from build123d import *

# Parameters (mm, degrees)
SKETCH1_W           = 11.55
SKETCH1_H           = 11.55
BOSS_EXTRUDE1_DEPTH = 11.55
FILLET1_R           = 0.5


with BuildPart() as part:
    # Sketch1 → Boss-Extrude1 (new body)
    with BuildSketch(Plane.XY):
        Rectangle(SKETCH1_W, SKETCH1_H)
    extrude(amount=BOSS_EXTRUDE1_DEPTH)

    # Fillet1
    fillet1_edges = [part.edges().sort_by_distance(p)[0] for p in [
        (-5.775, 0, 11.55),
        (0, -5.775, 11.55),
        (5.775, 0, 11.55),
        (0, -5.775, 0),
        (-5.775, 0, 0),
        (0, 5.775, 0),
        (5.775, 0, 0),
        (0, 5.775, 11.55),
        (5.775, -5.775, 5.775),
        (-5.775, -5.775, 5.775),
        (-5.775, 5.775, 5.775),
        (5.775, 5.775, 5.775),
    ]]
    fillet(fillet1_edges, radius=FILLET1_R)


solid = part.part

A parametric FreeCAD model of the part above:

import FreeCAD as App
import Part
import Sketcher
from FreeCAD import Vector


def add_polygon(sketch, points):
    """Adds a closed chain of lines whose ends are joined by coincident constraints."""
    first, n = sketch.GeometryCount, len(points)
    for a, b in zip(points, points[1:] + points[:1]):
        sketch.addGeometry(Part.LineSegment(App.Vector(*a, 0), App.Vector(*b, 0)), False)
    for i in range(n):
        sketch.addConstraint(Sketcher.Constraint("Coincident", first + i, 2, first + (i + 1) % n, 1))

doc = App.newDocument("Part")
body = doc.addObject("PartDesign::Body", "Body")

# Sketch on XY plane
sketch1 = doc.addObject("Sketcher::SketchObject", "Sketch")
body.addObject(sketch1)
sketch1.AttachmentSupport = (doc.XY_Plane, [""])
sketch1.MapMode = "FlatFace"
add_polygon(sketch1, [(-6, 6), (-6, -6), (6, -6), (6, 6)])  # lines 0-3
sketch1.addConstraint([
    Sketcher.Constraint("Vertical", 0),
    Sketcher.Constraint("Horizontal", 1),
    Sketcher.Constraint("Vertical", 2),
    Sketcher.Constraint("Horizontal", 3),
    Sketcher.Constraint("Symmetric", 0, 2, 2, 2, -1, 1),
    Sketcher.Constraint("Equal", 3, 0),
    Sketcher.Constraint("DistanceX", 1, 1, 1, 2, 11.55),
])
pad1 = doc.addObject("PartDesign::Pad", "Pad")
body.addObject(pad1)
pad1.Profile = sketch1
pad1.Length = 11.55
doc.recompute()

fillet = doc.addObject("PartDesign::Fillet", "Fillet")
body.addObject(fillet)
fillet.Base = (pad1, ["Edge1"])
fillet.UseAllEdges = True
fillet.Radius = 0.5

doc.recompute()
